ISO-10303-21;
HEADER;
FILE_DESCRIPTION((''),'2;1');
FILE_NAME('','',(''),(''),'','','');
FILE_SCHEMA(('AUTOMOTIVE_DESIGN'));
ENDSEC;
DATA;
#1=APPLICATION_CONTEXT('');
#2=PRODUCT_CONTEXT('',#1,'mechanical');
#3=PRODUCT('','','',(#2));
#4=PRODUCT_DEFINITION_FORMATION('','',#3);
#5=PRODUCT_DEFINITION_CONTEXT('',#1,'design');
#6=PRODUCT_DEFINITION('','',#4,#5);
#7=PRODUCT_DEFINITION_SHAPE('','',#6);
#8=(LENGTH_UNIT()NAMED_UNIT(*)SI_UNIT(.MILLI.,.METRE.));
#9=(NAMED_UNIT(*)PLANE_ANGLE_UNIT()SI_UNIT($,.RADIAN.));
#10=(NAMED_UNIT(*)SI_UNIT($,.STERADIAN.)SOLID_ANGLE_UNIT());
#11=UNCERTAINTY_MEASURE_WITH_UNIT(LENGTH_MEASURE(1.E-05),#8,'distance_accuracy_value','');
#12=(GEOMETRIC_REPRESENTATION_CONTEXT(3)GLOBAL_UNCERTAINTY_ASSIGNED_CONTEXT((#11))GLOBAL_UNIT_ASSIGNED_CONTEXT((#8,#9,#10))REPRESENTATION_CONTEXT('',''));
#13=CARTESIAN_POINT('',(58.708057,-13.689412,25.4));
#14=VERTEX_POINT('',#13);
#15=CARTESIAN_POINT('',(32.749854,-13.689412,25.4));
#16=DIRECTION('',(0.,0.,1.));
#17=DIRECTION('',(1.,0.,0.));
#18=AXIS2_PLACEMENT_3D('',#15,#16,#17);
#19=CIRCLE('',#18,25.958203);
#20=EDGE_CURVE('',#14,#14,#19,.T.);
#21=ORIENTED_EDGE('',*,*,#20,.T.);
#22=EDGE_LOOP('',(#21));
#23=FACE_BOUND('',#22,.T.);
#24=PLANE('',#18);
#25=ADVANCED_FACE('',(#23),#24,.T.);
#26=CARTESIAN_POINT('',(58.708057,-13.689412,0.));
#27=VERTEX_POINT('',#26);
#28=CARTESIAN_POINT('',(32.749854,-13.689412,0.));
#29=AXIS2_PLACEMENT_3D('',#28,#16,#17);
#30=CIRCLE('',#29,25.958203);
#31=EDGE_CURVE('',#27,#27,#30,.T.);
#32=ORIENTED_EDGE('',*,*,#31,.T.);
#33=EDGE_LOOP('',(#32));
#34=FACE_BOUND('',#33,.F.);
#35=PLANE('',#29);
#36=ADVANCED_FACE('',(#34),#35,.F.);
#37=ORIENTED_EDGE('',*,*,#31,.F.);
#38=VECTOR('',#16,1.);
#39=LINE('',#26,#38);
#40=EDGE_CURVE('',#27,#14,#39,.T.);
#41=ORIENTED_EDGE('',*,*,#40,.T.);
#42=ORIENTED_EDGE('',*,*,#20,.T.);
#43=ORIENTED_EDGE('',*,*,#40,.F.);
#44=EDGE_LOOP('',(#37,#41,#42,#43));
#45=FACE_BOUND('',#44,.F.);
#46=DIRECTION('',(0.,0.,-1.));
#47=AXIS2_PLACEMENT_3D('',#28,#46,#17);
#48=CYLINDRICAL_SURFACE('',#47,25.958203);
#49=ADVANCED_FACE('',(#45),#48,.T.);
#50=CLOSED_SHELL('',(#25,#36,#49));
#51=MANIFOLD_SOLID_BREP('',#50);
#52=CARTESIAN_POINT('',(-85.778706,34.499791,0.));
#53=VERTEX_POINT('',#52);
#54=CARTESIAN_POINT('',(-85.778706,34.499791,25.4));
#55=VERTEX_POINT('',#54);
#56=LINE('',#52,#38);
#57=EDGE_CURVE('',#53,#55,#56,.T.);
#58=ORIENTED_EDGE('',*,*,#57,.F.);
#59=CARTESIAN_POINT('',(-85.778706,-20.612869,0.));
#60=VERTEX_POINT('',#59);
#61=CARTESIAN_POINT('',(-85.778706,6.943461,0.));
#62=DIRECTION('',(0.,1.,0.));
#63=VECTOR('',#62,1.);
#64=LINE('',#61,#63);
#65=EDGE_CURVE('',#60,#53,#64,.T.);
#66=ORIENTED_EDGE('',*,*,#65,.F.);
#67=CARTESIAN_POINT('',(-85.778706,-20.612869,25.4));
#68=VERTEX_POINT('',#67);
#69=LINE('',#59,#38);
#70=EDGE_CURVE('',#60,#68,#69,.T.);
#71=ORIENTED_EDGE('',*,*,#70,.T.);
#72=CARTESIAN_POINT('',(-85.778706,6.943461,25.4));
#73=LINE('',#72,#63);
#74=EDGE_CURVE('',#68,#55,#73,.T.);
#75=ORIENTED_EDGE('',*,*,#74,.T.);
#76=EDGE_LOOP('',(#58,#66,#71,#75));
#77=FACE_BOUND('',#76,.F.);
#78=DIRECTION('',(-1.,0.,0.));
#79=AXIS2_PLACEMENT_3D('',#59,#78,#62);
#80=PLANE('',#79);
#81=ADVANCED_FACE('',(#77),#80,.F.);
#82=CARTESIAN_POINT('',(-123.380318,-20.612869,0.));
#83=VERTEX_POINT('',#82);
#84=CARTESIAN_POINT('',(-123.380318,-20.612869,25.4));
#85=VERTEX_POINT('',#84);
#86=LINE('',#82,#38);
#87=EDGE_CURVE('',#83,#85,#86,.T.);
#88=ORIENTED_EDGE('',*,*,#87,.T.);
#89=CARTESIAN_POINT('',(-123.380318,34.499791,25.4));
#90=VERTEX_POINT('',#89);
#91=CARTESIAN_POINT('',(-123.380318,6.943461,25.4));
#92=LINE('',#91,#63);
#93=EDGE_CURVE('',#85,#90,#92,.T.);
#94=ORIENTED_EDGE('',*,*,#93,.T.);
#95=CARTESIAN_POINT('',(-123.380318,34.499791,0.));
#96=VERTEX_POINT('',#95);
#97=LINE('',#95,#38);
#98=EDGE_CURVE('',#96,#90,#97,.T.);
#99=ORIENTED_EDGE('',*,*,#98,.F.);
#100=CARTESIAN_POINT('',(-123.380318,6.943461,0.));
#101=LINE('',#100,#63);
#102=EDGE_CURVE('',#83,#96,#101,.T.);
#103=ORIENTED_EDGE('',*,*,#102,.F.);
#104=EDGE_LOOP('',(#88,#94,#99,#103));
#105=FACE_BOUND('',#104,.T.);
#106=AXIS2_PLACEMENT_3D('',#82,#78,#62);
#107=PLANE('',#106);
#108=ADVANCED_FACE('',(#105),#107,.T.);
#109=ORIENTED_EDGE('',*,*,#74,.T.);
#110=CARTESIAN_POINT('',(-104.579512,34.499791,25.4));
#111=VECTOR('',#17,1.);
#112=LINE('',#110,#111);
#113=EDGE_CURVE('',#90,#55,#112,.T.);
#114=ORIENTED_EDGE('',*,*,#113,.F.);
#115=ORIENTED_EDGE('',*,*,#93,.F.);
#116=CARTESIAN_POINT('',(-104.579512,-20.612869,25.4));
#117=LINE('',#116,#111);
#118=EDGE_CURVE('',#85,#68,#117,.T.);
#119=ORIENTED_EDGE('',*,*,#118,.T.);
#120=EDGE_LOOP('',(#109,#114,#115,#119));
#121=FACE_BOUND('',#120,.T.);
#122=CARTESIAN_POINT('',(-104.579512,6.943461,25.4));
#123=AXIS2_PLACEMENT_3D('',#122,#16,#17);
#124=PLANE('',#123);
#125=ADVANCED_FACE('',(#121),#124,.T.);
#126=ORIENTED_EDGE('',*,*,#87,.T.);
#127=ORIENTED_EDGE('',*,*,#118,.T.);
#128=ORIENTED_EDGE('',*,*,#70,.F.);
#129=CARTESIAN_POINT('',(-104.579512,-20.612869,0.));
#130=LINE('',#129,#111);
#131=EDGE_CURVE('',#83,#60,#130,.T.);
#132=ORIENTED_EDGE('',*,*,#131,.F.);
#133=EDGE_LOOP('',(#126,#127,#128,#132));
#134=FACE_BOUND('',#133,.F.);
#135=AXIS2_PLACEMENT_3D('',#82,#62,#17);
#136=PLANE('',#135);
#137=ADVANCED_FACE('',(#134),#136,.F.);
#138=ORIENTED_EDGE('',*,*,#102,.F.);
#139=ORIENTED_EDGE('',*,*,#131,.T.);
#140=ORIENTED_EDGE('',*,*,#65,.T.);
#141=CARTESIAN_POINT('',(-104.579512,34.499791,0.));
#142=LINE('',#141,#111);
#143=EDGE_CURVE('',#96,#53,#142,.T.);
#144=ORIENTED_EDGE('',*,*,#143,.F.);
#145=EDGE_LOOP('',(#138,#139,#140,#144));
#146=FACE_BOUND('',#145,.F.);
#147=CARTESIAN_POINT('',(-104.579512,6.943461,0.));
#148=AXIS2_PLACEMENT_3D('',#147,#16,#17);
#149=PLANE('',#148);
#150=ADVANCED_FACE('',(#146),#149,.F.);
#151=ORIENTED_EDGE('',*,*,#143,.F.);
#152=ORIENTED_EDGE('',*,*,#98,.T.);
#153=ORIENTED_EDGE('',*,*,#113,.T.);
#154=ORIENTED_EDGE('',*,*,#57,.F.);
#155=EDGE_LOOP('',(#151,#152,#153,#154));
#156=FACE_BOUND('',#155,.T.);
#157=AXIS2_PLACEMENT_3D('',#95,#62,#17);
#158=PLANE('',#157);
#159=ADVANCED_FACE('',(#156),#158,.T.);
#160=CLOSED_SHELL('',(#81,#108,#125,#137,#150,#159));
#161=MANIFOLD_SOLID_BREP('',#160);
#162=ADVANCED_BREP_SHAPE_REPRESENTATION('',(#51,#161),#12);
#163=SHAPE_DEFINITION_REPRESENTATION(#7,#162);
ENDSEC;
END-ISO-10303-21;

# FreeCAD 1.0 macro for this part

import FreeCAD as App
import Part
import Sketcher
Q = App.Units.Quantity

doc = App.newDocument("Part")
body = doc.addObject("PartDesign::Body", "Body")
body.AllowCompound = True

# Sketch on XY plane
sketch1 = body.newObject("Sketcher::SketchObject", "Sketch")
sketch1.AttachmentSupport = (doc.getObject("XY_Plane"), [""])
sketch1.MapMode = "FlatFace"
sketch1.addGeometry([
    Part.LineSegment(App.Vector(-123, 34, 0), App.Vector(-123, -21, 0)),  # 0
    Part.LineSegment(App.Vector(-123, -21, 0), App.Vector(-86, -21, 0)),  # 1
    Part.LineSegment(App.Vector(-86, -21, 0), App.Vector(-86, 34, 0)),  # 2
    Part.LineSegment(App.Vector(-86, 34, 0), App.Vector(-123, 34, 0)),  # 3
    Part.Circle(App.Vector(33, -14, 0), App.Vector(0, 0, 1), 26),  # 4
], False)
sketch1.addConstraint([
    Sketcher.Constraint("Coincident", 0, 2, 1, 1),
    Sketcher.Constraint("Coincident", 1, 2, 2, 1),
    Sketcher.Constraint("Coincident", 2, 2, 3, 1),
    Sketcher.Constraint("Coincident", 3, 2, 0, 1),
    Sketcher.Constraint("Vertical", 0),
    Sketcher.Constraint("Horizontal", 1),
    Sketcher.Constraint("Vertical", 2),
    Sketcher.Constraint("Horizontal", 3),
    Sketcher.Constraint("Diameter", 4, Q("51.916406 mm")),
    Sketcher.Constraint("DistanceY", 0, 2, 0, 1, Q("55.11266 mm")),
    Sketcher.Constraint("DistanceX", 1, 1, 1, 2, Q("37.601612 mm")),
    Sketcher.Constraint("DistanceX", 0, 2, -1, 1, Q("123.380318 mm")),
    Sketcher.Constraint("DistanceY", 0, 2, -1, 1, Q("20.612869 mm")),
    Sketcher.Constraint("DistanceX", 1, 2, 4, 3, Q("118.52856 mm")),
    Sketcher.Constraint("DistanceY", 4, 3, -1, 1, Q("13.689412 mm")),
])
pad1 = body.newObject("PartDesign::Pad", "Pad")
pad1.Profile = sketch1
pad1.Length = Q("1 in")

doc.recompute()
